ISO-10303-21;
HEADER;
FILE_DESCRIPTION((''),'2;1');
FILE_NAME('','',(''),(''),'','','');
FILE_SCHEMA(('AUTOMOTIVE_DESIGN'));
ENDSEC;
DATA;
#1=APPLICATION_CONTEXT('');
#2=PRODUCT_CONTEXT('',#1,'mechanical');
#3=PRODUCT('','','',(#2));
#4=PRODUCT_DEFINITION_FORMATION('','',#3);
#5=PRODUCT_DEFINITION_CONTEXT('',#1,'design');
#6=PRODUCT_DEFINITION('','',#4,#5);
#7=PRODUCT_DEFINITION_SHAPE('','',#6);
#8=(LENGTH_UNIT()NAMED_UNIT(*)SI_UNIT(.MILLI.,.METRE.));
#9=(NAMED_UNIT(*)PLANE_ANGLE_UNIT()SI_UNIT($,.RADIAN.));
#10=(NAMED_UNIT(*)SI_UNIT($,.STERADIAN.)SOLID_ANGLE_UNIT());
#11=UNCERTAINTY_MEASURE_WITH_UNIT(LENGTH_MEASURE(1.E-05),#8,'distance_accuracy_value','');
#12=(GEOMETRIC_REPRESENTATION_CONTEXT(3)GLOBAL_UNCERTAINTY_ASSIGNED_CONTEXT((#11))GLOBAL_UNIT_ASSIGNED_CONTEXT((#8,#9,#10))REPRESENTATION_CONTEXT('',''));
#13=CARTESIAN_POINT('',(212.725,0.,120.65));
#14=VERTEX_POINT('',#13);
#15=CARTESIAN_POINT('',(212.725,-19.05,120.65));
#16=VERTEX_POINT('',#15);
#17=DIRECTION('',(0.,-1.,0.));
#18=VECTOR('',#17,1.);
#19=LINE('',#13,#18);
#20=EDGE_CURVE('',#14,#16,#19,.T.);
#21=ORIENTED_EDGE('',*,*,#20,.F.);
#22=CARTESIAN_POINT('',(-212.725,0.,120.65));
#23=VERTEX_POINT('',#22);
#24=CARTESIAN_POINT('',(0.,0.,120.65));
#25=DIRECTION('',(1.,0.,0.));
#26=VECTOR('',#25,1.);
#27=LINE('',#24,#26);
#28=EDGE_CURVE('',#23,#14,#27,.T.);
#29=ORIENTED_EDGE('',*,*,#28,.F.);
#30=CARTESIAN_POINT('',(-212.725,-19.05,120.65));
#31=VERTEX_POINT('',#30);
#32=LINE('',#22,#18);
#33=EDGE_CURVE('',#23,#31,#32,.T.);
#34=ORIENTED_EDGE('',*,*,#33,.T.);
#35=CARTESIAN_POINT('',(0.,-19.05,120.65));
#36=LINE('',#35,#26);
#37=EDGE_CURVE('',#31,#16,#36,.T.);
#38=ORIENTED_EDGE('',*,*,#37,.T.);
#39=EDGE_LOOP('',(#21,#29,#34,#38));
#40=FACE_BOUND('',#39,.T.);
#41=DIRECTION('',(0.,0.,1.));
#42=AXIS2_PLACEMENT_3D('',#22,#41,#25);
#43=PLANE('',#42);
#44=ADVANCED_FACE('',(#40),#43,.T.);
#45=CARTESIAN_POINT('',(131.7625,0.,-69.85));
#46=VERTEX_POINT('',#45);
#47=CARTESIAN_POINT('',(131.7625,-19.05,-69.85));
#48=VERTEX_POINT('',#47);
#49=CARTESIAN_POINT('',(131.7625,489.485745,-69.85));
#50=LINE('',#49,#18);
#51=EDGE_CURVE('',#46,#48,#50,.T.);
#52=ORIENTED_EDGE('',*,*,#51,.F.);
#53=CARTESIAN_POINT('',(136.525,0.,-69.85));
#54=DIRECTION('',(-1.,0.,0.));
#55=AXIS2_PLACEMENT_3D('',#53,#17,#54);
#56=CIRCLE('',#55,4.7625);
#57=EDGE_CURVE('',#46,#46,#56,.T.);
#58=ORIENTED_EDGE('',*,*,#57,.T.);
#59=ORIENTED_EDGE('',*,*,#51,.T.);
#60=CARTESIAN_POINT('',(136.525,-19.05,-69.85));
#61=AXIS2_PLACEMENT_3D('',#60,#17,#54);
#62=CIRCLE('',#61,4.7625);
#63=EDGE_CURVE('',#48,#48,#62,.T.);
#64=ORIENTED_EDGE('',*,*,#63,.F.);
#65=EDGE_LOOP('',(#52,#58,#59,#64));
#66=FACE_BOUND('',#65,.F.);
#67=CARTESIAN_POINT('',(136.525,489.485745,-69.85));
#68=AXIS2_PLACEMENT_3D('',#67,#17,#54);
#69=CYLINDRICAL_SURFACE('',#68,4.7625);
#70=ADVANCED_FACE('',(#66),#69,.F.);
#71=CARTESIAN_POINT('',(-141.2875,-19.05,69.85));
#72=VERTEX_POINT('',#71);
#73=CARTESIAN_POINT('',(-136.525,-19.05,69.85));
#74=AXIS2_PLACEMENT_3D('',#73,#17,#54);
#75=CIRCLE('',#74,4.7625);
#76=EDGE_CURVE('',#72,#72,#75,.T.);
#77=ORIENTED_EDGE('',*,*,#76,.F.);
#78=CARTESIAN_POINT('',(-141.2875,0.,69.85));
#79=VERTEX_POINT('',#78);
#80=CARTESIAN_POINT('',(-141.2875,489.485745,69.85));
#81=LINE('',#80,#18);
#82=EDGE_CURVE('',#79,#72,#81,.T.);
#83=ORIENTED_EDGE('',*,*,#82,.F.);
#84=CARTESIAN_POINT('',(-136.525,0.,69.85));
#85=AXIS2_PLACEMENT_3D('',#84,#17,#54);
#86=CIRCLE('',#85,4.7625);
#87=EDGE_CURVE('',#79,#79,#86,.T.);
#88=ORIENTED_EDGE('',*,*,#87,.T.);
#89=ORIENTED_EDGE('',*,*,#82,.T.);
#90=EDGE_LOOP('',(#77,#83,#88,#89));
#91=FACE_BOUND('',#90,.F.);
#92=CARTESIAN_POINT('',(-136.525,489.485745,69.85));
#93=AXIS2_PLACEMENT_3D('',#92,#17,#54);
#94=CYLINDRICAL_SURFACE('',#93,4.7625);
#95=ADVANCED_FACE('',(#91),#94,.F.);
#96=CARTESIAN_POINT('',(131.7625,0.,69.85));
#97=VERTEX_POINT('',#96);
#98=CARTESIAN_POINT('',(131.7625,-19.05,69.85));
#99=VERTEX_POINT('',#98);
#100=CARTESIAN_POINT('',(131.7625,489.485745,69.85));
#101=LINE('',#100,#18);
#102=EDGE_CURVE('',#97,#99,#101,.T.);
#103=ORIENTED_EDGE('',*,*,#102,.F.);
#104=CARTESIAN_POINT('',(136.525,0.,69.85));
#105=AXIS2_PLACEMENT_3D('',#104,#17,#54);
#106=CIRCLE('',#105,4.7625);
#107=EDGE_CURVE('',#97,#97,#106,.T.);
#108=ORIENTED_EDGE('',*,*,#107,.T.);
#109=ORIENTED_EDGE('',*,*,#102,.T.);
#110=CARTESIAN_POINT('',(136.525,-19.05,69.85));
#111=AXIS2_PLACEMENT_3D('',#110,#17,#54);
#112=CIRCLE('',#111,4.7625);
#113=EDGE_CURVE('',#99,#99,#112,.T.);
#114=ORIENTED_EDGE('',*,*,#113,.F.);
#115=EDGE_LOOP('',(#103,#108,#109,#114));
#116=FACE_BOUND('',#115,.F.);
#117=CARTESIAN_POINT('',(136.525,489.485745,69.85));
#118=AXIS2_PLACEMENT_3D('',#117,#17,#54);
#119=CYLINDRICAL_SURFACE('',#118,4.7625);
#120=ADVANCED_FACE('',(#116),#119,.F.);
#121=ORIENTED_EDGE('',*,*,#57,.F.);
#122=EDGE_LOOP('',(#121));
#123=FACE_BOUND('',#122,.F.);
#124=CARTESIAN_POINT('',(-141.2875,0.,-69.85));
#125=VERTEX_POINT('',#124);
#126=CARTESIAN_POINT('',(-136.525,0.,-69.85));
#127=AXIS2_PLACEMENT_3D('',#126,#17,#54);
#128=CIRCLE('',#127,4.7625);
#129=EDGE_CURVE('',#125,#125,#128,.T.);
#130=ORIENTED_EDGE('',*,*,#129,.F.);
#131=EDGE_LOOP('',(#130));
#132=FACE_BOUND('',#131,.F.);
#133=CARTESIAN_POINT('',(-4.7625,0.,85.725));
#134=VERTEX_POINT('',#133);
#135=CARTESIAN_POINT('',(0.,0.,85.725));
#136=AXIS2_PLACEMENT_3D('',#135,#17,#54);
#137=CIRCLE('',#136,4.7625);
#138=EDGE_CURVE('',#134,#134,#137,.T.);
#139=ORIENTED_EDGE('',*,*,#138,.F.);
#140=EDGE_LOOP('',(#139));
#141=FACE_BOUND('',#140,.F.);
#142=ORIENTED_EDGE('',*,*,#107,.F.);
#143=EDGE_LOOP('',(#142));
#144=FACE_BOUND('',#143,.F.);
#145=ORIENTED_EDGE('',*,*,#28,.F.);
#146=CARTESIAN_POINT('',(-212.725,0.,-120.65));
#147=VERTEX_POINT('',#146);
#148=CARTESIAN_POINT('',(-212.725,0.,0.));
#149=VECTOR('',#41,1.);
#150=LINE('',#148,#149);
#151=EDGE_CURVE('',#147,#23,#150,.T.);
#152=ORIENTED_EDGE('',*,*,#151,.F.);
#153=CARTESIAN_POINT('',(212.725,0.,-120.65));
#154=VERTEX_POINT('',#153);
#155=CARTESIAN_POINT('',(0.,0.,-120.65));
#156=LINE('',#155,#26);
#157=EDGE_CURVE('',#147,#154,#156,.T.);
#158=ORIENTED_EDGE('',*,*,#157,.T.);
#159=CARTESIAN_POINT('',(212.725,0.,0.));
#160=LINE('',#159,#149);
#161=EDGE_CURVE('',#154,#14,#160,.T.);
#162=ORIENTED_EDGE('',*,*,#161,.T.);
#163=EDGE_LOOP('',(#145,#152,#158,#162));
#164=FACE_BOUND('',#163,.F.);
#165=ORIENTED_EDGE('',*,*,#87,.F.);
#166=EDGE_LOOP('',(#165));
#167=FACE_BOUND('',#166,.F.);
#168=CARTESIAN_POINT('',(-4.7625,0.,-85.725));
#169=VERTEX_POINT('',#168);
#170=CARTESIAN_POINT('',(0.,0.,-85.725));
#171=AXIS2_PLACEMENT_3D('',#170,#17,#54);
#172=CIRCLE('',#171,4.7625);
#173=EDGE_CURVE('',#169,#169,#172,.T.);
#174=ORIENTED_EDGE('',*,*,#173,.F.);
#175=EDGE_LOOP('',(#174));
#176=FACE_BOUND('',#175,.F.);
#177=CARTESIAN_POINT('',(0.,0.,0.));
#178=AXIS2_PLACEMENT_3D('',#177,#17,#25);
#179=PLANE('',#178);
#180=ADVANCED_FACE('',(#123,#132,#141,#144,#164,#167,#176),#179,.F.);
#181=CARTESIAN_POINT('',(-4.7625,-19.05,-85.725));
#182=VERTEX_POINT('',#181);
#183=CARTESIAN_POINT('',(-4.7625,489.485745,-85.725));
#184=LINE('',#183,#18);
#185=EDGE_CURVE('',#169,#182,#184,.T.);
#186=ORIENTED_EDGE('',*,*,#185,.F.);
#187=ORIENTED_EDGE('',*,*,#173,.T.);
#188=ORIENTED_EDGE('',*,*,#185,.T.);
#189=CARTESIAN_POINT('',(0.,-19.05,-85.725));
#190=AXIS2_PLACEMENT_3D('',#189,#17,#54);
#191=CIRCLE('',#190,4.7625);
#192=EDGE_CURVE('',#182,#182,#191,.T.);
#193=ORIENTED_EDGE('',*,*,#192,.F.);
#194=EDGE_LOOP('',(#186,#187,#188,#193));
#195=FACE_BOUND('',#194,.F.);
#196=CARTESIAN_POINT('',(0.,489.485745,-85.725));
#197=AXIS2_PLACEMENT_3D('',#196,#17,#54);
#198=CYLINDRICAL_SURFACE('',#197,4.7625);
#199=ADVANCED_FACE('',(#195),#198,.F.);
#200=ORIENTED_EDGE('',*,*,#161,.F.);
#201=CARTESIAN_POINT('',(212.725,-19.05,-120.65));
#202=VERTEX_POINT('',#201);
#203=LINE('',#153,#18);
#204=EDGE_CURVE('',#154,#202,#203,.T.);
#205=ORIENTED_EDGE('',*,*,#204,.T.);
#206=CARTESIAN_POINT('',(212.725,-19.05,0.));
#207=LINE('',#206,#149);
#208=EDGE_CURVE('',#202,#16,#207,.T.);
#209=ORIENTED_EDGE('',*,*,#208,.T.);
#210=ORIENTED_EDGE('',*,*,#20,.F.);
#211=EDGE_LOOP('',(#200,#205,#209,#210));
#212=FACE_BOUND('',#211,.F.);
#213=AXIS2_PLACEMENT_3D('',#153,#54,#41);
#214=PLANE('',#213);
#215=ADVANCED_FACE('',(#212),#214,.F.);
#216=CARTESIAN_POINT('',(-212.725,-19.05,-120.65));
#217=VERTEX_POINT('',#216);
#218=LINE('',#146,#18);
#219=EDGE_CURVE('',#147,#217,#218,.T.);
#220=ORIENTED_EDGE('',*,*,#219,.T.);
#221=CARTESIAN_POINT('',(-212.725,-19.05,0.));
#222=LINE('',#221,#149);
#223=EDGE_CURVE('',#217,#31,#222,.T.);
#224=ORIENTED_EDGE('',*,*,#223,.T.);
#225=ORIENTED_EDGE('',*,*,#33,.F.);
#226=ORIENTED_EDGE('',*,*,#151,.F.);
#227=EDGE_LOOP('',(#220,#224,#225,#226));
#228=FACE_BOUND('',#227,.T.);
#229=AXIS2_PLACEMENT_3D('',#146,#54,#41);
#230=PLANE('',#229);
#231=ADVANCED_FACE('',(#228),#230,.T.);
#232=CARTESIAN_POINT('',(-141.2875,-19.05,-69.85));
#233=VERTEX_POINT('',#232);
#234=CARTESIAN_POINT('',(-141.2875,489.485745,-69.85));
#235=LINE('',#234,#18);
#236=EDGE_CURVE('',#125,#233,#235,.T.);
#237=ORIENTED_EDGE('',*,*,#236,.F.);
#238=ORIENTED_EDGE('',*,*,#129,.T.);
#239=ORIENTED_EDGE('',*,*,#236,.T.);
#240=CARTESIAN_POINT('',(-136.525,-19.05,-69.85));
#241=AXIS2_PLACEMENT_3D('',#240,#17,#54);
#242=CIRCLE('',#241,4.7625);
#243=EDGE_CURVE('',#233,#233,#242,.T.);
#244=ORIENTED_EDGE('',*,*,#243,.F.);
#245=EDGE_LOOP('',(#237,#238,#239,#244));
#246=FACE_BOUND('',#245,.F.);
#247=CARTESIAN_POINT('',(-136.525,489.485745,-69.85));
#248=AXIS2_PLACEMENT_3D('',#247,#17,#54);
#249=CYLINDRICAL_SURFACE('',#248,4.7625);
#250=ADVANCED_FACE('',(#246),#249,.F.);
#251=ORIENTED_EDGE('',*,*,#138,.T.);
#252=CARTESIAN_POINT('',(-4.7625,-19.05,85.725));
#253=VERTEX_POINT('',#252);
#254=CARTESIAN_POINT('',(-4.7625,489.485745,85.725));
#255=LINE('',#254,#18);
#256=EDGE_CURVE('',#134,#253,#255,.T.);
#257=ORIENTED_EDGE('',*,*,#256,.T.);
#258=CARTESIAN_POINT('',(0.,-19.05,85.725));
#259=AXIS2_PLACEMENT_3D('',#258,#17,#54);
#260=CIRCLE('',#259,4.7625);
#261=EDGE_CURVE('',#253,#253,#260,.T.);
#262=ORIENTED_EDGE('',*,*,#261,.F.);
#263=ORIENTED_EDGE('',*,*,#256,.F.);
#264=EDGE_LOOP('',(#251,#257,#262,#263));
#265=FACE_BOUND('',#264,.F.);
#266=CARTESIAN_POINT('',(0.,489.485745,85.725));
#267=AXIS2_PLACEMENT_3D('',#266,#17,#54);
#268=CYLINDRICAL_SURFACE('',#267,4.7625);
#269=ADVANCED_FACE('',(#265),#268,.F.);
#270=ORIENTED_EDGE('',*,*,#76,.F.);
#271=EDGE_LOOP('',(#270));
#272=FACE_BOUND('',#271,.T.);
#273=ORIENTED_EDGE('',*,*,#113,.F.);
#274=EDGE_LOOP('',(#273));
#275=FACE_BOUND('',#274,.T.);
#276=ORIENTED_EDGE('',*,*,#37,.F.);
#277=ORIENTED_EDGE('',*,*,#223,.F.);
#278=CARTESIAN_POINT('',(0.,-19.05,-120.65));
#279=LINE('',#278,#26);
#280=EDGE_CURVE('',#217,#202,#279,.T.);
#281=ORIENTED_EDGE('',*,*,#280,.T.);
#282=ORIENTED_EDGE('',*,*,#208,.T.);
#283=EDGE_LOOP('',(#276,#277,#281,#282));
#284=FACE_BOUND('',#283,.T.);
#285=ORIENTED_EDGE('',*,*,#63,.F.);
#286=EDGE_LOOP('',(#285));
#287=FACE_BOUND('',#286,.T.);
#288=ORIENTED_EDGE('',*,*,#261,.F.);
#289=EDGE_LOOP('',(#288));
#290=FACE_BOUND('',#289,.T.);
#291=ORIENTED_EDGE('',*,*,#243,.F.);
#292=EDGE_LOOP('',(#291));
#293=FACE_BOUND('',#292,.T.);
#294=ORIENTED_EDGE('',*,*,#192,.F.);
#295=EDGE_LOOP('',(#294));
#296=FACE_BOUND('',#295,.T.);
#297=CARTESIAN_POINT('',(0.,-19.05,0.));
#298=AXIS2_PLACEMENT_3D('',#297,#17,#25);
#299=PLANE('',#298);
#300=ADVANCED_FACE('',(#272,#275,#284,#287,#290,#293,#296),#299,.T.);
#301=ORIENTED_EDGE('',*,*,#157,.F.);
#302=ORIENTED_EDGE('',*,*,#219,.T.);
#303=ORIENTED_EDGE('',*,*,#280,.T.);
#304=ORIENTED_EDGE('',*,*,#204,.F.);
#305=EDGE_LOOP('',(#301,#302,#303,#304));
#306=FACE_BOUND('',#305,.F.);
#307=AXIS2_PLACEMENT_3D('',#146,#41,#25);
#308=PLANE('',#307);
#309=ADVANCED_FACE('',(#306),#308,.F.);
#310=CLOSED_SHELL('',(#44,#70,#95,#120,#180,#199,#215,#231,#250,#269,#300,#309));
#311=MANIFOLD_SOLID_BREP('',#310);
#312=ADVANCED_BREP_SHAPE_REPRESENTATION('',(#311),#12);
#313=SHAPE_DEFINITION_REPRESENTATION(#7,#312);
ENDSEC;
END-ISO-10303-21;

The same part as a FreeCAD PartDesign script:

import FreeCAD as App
import Part
import Sketcher
from FreeCAD import Vector
Q = App.Units.Quantity

doc = App.newDocument("Part")
body = doc.addObject("PartDesign::Body", "Body")

# Sketch on XZ plane
sketch1 = doc.addObject("Sketcher::SketchObject", "Sketch")
body.addObject(sketch1)
sketch1.AttachmentSupport = (doc.XZ_Plane, [""])
sketch1.MapMode = "FlatFace"
sketch1.addGeometry([
    Part.LineSegment(Vector(-213, 121, 0), Vector(-213, -121, 0)),
    Part.LineSegment(Vector(-213, -121, 0), Vector(213, -121, 0)),
    Part.LineSegment(Vector(213, -121, 0), Vector(213, 121, 0)),
    Part.LineSegment(Vector(213, 121, 0), Vector(-213, 121, 0)),
], False)
sketch1.addConstraint([
    Sketcher.Constraint("Coincident", 0, 2, 1, 1),
    Sketcher.Constraint("Coincident", 1, 2, 2, 1),
    Sketcher.Constraint("Coincident", 2, 2, 3, 1),
    Sketcher.Constraint("Coincident", 3, 2, 0, 1),
    Sketcher.Constraint("Vertical", 0),
    Sketcher.Constraint("Horizontal", 1),
    Sketcher.Constraint("Vertical", 2),
    Sketcher.Constraint("Horizontal", 3),
    Sketcher.Constraint("Symmetric", 0, 2, 2, 2, -1, 1),
    Sketcher.Constraint("DistanceY", 0, 2, 0, 1, Q("9.5 in")),
    Sketcher.Constraint("DistanceX", 1, 1, 1, 2, Q("16.75 in")),
])
pad1 = doc.addObject("PartDesign::Pad", "Pad")
body.addObject(pad1)
pad1.Profile = sketch1
pad1.Length = Q("0.75 in")

# Sketch on XZ plane
sketch2 = doc.addObject("Sketcher::SketchObject", "Sketch001")
body.addObject(sketch2)
sketch2.AttachmentSupport = (doc.XZ_Plane, [""])
sketch2.MapMode = "FlatFace"
sketch2.addGeometry(Part.Circle(Vector(136.5, -69.8, 0), Vector(0, 0, 1), 4.8), False)
sketch2.addConstraint([
    Sketcher.Constraint("Diameter", 0, Q("0.375 in")),
    Sketcher.Constraint("DistanceY", 0, 3, -1, 1, Q("2.75 in")),
    Sketcher.Constraint("DistanceX", -1, 1, 0, 3, Q("5.375 in")),
])
doc.recompute()
hole = doc.addObject("PartDesign::Hole", "Hole")
body.addObject(hole)
hole.Profile = sketch2
hole.ThreadType = "None"
hole.Diameter = Q("0.375 in")
hole.DepthType = "ThroughAll"
hole.Reversed = True

# Sketch on XZ plane
sketch3 = doc.addObject("Sketcher::SketchObject", "Sketch002")
body.addObject(sketch3)
sketch3.AttachmentSupport = (doc.XZ_Plane, [""])
sketch3.MapMode = "FlatFace"
sketch3.addGeometry(Part.Circle(Vector(136.5, 69.8, 0), Vector(0, 0, 1), 4.8), False)
sketch3.addConstraint([
    Sketcher.Constraint("Diameter", 0, Q("0.375 in")),
    Sketcher.Constraint("DistanceY", -1, 1, 0, 3, Q("2.75 in")),
    Sketcher.Constraint("DistanceX", -1, 1, 0, 3, Q("5.375 in")),
])
doc.recompute()
hole2 = doc.addObject("PartDesign::Hole", "Hole001")
body.addObject(hole2)
hole2.Profile = sketch3
hole2.ThreadType = "None"
hole2.Diameter = Q("0.375 in")
hole2.DepthType = "ThroughAll"
hole2.Reversed = True

# Sketch on XZ plane
sketch4 = doc.addObject("Sketcher::SketchObject", "Sketch003")
body.addObject(sketch4)
sketch4.AttachmentSupport = (doc.XZ_Plane, [""])
sketch4.MapMode = "FlatFace"
sketch4.addGeometry(Part.Circle(Vector(-136.5, -69.8, 0), Vector(0, 0, 1), 4.8), False)
sketch4.addConstraint([
    Sketcher.Constraint("Diameter", 0, Q("0.375 in")),
    Sketcher.Constraint("DistanceY", 0, 3, -1, 1, Q("2.75 in")),
    Sketcher.Constraint("DistanceX", 0, 3, -1, 1, Q("5.375 in")),
])
doc.recompute()
hole3 = doc.addObject("PartDesign::Hole", "Hole002")
body.addObject(hole3)
hole3.Profile = sketch4
hole3.ThreadType = "None"
hole3.Diameter = Q("0.375 in")
hole3.DepthType = "ThroughAll"
hole3.Reversed = True

# Sketch on XZ plane
sketch5 = doc.addObject("Sketcher::SketchObject", "Sketch004")
body.addObject(sketch5)
sketch5.AttachmentSupport = (doc.XZ_Plane, [""])
sketch5.MapMode = "FlatFace"
sketch5.addGeometry(Part.Circle(Vector(-136.5, 69.8, 0), Vector(0, 0, 1), 4.8), False)
sketch5.addConstraint([
    Sketcher.Constraint("Diameter", 0, Q("0.375 in")),
    Sketcher.Constraint("DistanceY", -1, 1, 0, 3, Q("2.75 in")),
    Sketcher.Constraint("DistanceX", 0, 3, -1, 1, Q("5.375 in")),
])
doc.recompute()
hole4 = doc.addObject("PartDesign::Hole", "Hole003")
body.addObject(hole4)
hole4.Profile = sketch5
hole4.ThreadType = "None"
hole4.Diameter = Q("0.375 in")
hole4.DepthType = "ThroughAll"
hole4.Reversed = True

# Sketch on XZ plane
sketch6 = doc.addObject("Sketcher::SketchObject", "Sketch005")
body.addObject(sketch6)
sketch6.AttachmentSupport = (doc.XZ_Plane, [""])
sketch6.MapMode = "FlatFace"
sketch6.addGeometry(Part.Circle(Vector(0, -85.7, 0), Vector(0, 0, 1), 4.8), False)
sketch6.addConstraint([
    Sketcher.Constraint("PointOnObject", 0, 3, -2),
    Sketcher.Constraint("Diameter", 0, Q("0.375 in")),
    Sketcher.Constraint("DistanceY", 0, 3, -1, 1, Q("3.375 in")),
])
doc.recompute()
hole5 = doc.addObject("PartDesign::Hole", "Hole004")
body.addObject(hole5)
hole5.Profile = sketch6
hole5.ThreadType = "None"
hole5.Diameter = Q("0.375 in")
hole5.DepthType = "ThroughAll"
hole5.Reversed = True

# Sketch on XZ plane
sketch7 = doc.addObject("Sketcher::SketchObject", "Sketch006")
body.addObject(sketch7)
sketch7.AttachmentSupport = (doc.XZ_Plane, [""])
sketch7.MapMode = "FlatFace"
sketch7.addGeometry(Part.Circle(Vector(0, 85.7, 0), Vector(0, 0, 1), 4.8), False)
sketch7.addConstraint([
    Sketcher.Constraint("PointOnObject", 0, 3, -2),
    Sketcher.Constraint("Diameter", 0, Q("0.375 in")),
    Sketcher.Constraint("DistanceY", -1, 1, 0, 3, Q("3.375 in")),
])
doc.recompute()
hole6 = doc.addObject("PartDesign::Hole", "Hole005")
body.addObject(hole6)
hole6.Profile = sketch7
hole6.ThreadType = "None"
hole6.Diameter = Q("0.375 in")
hole6.DepthType = "ThroughAll"
hole6.Reversed = True

doc.recompute()
